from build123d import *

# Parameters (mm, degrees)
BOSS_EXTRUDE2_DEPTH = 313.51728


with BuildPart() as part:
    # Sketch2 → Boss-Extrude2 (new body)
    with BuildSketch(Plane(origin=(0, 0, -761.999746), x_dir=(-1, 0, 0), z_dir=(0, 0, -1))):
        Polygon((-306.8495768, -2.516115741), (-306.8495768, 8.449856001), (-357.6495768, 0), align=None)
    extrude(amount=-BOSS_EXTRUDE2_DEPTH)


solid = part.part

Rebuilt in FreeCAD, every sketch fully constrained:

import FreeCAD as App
import Part
import Sketcher

V = App.Vector
Q = App.Units.Quantity

doc = App.newDocument("Part")
body = doc.addObject("PartDesign::Body", "Body")

sketch1 = body.newObject("Sketcher::SketchObject", "Sketch")
sketch1.AttachmentSupport = (doc.getObject("XY_Plane"), [""])
sketch1.MapMode = "FlatFace"
sketch1.AttachmentOffset = App.Placement(V(0, 0, -761.999746), App.Rotation())
sketch1.addGeometry([
    Part.LineSegment(V(306.849577, -2.516116, 0), V(306.849577, 8.449856, 0)),
    Part.LineSegment(V(306.849577, 8.449856, 0), V(357.649577, 0, 0)),
    Part.LineSegment(V(357.649577, 0, 0), V(306.849577, -2.516116, 0)),
], False)
sketch1.addConstraint([
    Sketcher.Constraint("Coincident", 0, 2, 1, 1),
    Sketcher.Constraint("Coincident", 1, 2, 2, 1),
    Sketcher.Constraint("Coincident", 2, 2, 0, 1),
    Sketcher.Constraint("Vertical", 0),
    Sketcher.Constraint("PointOnObject", 1, 2, -1),
    Sketcher.Constraint("DistanceX", 0, 2, 1, 2, Q("50.8 mm")),
    Sketcher.Constraint("DistanceY", 0, 1, 0, 2, Q("10.965972 mm")),
    Sketcher.Constraint("Distance", 1, Q("51.497962 mm")),
    Sketcher.Constraint("DistanceX", -1, 1, 0, 2, Q("306.849577 mm")),
])
pad1 = body.newObject("PartDesign::Pad", "Pad")
pad1.Profile = sketch1
pad1.Length = 313.51728

doc.recompute()
